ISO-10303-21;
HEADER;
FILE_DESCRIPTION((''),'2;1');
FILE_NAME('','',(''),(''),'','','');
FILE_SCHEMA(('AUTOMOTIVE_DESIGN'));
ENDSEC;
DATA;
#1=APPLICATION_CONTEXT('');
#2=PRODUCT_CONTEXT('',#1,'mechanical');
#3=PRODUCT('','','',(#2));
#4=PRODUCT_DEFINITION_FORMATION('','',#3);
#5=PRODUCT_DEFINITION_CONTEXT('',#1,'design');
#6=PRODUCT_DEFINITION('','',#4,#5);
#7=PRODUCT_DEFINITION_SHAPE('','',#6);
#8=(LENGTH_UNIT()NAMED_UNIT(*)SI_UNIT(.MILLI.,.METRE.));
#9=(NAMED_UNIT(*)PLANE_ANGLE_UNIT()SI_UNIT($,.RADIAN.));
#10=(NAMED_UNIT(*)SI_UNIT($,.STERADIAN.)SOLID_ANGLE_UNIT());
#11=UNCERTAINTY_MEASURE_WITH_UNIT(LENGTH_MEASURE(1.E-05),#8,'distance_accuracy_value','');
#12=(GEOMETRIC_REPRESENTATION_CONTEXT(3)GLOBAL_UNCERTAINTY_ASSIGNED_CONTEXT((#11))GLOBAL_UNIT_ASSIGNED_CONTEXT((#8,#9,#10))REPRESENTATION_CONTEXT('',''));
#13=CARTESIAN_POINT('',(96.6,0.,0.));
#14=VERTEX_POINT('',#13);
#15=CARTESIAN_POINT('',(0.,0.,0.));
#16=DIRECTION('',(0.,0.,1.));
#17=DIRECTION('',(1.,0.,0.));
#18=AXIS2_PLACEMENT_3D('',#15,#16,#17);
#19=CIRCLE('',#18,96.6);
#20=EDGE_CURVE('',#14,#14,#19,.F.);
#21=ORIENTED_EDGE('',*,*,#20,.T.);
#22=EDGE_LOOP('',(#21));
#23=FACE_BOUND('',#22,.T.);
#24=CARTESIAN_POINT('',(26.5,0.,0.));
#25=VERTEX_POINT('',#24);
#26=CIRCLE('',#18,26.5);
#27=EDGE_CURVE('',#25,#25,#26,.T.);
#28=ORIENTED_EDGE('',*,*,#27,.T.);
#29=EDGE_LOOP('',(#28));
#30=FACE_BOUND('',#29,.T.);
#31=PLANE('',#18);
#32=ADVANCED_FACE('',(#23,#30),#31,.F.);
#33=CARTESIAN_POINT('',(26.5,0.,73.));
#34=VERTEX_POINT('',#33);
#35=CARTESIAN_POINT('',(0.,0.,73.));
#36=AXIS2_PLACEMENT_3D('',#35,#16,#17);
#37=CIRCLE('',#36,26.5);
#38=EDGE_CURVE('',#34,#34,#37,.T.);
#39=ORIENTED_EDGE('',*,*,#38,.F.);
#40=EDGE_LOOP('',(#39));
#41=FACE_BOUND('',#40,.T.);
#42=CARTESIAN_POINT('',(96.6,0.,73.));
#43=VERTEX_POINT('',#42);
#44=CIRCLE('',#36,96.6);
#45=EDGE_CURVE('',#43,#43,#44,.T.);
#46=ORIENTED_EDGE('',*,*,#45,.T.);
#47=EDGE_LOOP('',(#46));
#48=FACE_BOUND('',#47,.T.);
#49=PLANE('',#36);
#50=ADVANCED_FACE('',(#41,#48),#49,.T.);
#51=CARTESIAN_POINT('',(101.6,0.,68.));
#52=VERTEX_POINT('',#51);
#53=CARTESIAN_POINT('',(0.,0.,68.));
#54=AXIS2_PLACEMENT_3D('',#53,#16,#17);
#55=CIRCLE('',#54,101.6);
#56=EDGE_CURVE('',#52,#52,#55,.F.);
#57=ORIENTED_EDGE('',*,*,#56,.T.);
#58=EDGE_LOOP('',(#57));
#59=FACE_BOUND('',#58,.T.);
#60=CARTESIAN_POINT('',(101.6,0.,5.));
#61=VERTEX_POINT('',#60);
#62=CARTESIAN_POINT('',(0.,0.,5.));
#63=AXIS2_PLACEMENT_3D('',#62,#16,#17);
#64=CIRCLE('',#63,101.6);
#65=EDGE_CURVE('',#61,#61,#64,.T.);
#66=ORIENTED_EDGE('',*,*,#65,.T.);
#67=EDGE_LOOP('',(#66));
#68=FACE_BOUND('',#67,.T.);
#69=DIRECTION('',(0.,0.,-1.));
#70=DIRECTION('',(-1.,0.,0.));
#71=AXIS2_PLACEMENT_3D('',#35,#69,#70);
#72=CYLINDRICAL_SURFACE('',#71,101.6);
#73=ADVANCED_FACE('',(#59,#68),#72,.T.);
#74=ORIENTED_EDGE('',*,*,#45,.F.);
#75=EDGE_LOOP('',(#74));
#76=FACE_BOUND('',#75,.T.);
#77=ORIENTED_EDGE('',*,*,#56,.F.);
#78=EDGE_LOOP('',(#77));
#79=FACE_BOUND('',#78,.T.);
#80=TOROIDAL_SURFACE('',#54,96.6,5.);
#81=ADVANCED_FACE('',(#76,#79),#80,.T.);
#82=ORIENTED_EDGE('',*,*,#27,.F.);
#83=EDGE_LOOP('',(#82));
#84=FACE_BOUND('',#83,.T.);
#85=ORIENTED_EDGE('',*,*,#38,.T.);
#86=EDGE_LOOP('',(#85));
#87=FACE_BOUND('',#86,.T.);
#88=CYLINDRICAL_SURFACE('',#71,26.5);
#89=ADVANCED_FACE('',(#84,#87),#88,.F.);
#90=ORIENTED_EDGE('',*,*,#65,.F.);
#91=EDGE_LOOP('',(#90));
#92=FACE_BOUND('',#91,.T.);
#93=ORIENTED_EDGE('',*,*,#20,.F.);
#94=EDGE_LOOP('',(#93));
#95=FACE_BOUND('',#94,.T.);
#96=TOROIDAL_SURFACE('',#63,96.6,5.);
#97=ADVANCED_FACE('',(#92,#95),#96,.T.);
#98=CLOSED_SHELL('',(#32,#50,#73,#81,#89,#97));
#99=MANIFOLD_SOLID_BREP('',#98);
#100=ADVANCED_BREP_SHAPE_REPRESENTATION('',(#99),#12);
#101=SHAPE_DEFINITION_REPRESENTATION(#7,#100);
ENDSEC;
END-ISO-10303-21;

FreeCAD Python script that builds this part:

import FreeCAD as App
import Part
import Sketcher
from FreeCAD import Vector
Q = App.Units.Quantity


def edges_at(feature, points):
    """Names of the edges that pass closest to the given points."""
    edges = feature.Shape.Edges
    near = lambda p: min(range(len(edges)), key=lambda i: edges[i].distToShape(Part.Vertex(*p))[0])
    return sorted({f"Edge{near(p) + 1}" for p in points})

doc = App.newDocument("Part")
body = doc.addObject("PartDesign::Body", "Body")

sketch1 = doc.addObject("Sketcher::SketchObject", "Sketch")
body.addObject(sketch1)
sketch1.AttachmentSupport = (doc.XY_Plane, [""])
sketch1.MapMode = "FlatFace"
sketch1.addGeometry(Part.Circle(Vector(0, 0, 0), Vector(0, 0, 1), 102), False)
sketch1.addGeometry(Part.Circle(Vector(0, 0, 0), Vector(0, 0, 1), 26), False)
sketch1.addConstraint(Sketcher.Constraint("Coincident", 0, 3, -1, 1))
sketch1.addConstraint(Sketcher.Constraint("Coincident", 1, 3, -1, 1))
sketch1.addConstraint(Sketcher.Constraint("Diameter", 1, Q("53 mm")))
sketch1.addConstraint(Sketcher.Constraint("Diameter", 0, Q("203.2 mm")))
pad1 = doc.addObject("PartDesign::Pad", "Pad")
body.addObject(pad1)
pad1.Profile = sketch1
pad1.Length = 73
doc.recompute()

fillet = doc.addObject("PartDesign::Fillet", "Fillet")
body.addObject(fillet)
fillet.Base = (pad1, edges_at(pad1, [(-101.6, 0, 0), (-101.6, 0, 73)]))
fillet.Radius = 5

doc.recompute()
